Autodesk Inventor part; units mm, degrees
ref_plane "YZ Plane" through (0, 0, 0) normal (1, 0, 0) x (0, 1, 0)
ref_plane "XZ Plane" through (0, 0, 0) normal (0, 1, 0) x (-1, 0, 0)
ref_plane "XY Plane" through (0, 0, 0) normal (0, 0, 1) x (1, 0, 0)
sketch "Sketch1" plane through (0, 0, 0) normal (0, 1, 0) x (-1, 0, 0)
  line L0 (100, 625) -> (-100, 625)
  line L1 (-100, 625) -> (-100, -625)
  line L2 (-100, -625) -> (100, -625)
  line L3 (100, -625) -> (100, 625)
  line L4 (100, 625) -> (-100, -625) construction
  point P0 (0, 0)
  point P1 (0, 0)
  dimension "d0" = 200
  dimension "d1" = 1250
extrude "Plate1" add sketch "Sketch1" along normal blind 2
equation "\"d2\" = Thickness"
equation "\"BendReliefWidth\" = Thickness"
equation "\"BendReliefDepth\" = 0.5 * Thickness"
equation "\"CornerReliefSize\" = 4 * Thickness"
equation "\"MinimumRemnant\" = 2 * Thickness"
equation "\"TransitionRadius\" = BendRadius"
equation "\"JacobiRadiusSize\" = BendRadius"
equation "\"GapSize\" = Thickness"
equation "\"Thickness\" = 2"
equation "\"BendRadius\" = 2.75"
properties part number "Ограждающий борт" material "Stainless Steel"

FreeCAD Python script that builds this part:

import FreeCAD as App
import Part
import Sketcher
from FreeCAD import Vector

doc = App.newDocument("Part")
params = doc.addObject("Spreadsheet::Sheet", "Params")
for row, (alias, value) in enumerate([
    ("sketch1_width", "200 mm"),
    ("sketch1_height", "1250 mm"),
    ("pad1_length", "2 mm"),
], start=1):
    params.set(f"A{row}", alias)
    params.set(f"B{row}", "=" + value)
    params.setAlias(f"B{row}", alias)

body = doc.addObject("PartDesign::Body", "Body")

sketch1 = doc.addObject("Sketcher::SketchObject", "Sketch")
body.addObject(sketch1)
sketch1.AttachmentSupport = (doc.XZ_Plane, [""])
sketch1.MapMode = "FlatFace"
sketch1.addGeometry([
    Part.LineSegment(Vector(-100, -625, 0), Vector(-100, 625, 0)),
    Part.LineSegment(Vector(-100, 625, 0), Vector(100, 625, 0)),
    Part.LineSegment(Vector(100, 625, 0), Vector(100, -625, 0)),
    Part.LineSegment(Vector(100, -625, 0), Vector(-100, -625, 0)),
], False)
sketch1.addConstraint([
    Sketcher.Constraint("Coincident", 0, 2, 1, 1),
    Sketcher.Constraint("Coincident", 1, 2, 2, 1),
    Sketcher.Constraint("Coincident", 2, 2, 3, 1),
    Sketcher.Constraint("Coincident", 3, 2, 0, 1),
    Sketcher.Constraint("Vertical", 0),
    Sketcher.Constraint("Horizontal", 1),
    Sketcher.Constraint("Vertical", 2),
    Sketcher.Constraint("Horizontal", 3),
    Sketcher.Constraint("Symmetric", 0, 2, 2, 2, -1, 1),
    Sketcher.Constraint("DistanceX", 1, 1, 1, 2, 200.0),
    Sketcher.Constraint("DistanceY", 0, 1, 0, 2, 1250.0),
])
sketch1.setExpression("Constraints[9]", "Params.sketch1_width")
sketch1.setExpression("Constraints[10]", "Params.sketch1_height")
pad1 = doc.addObject("PartDesign::Pad", "Pad")
body.addObject(pad1)
pad1.Profile = sketch1
pad1.setExpression("Length", "Params.pad1_length")
pad1.Reversed = True

doc.recompute()
